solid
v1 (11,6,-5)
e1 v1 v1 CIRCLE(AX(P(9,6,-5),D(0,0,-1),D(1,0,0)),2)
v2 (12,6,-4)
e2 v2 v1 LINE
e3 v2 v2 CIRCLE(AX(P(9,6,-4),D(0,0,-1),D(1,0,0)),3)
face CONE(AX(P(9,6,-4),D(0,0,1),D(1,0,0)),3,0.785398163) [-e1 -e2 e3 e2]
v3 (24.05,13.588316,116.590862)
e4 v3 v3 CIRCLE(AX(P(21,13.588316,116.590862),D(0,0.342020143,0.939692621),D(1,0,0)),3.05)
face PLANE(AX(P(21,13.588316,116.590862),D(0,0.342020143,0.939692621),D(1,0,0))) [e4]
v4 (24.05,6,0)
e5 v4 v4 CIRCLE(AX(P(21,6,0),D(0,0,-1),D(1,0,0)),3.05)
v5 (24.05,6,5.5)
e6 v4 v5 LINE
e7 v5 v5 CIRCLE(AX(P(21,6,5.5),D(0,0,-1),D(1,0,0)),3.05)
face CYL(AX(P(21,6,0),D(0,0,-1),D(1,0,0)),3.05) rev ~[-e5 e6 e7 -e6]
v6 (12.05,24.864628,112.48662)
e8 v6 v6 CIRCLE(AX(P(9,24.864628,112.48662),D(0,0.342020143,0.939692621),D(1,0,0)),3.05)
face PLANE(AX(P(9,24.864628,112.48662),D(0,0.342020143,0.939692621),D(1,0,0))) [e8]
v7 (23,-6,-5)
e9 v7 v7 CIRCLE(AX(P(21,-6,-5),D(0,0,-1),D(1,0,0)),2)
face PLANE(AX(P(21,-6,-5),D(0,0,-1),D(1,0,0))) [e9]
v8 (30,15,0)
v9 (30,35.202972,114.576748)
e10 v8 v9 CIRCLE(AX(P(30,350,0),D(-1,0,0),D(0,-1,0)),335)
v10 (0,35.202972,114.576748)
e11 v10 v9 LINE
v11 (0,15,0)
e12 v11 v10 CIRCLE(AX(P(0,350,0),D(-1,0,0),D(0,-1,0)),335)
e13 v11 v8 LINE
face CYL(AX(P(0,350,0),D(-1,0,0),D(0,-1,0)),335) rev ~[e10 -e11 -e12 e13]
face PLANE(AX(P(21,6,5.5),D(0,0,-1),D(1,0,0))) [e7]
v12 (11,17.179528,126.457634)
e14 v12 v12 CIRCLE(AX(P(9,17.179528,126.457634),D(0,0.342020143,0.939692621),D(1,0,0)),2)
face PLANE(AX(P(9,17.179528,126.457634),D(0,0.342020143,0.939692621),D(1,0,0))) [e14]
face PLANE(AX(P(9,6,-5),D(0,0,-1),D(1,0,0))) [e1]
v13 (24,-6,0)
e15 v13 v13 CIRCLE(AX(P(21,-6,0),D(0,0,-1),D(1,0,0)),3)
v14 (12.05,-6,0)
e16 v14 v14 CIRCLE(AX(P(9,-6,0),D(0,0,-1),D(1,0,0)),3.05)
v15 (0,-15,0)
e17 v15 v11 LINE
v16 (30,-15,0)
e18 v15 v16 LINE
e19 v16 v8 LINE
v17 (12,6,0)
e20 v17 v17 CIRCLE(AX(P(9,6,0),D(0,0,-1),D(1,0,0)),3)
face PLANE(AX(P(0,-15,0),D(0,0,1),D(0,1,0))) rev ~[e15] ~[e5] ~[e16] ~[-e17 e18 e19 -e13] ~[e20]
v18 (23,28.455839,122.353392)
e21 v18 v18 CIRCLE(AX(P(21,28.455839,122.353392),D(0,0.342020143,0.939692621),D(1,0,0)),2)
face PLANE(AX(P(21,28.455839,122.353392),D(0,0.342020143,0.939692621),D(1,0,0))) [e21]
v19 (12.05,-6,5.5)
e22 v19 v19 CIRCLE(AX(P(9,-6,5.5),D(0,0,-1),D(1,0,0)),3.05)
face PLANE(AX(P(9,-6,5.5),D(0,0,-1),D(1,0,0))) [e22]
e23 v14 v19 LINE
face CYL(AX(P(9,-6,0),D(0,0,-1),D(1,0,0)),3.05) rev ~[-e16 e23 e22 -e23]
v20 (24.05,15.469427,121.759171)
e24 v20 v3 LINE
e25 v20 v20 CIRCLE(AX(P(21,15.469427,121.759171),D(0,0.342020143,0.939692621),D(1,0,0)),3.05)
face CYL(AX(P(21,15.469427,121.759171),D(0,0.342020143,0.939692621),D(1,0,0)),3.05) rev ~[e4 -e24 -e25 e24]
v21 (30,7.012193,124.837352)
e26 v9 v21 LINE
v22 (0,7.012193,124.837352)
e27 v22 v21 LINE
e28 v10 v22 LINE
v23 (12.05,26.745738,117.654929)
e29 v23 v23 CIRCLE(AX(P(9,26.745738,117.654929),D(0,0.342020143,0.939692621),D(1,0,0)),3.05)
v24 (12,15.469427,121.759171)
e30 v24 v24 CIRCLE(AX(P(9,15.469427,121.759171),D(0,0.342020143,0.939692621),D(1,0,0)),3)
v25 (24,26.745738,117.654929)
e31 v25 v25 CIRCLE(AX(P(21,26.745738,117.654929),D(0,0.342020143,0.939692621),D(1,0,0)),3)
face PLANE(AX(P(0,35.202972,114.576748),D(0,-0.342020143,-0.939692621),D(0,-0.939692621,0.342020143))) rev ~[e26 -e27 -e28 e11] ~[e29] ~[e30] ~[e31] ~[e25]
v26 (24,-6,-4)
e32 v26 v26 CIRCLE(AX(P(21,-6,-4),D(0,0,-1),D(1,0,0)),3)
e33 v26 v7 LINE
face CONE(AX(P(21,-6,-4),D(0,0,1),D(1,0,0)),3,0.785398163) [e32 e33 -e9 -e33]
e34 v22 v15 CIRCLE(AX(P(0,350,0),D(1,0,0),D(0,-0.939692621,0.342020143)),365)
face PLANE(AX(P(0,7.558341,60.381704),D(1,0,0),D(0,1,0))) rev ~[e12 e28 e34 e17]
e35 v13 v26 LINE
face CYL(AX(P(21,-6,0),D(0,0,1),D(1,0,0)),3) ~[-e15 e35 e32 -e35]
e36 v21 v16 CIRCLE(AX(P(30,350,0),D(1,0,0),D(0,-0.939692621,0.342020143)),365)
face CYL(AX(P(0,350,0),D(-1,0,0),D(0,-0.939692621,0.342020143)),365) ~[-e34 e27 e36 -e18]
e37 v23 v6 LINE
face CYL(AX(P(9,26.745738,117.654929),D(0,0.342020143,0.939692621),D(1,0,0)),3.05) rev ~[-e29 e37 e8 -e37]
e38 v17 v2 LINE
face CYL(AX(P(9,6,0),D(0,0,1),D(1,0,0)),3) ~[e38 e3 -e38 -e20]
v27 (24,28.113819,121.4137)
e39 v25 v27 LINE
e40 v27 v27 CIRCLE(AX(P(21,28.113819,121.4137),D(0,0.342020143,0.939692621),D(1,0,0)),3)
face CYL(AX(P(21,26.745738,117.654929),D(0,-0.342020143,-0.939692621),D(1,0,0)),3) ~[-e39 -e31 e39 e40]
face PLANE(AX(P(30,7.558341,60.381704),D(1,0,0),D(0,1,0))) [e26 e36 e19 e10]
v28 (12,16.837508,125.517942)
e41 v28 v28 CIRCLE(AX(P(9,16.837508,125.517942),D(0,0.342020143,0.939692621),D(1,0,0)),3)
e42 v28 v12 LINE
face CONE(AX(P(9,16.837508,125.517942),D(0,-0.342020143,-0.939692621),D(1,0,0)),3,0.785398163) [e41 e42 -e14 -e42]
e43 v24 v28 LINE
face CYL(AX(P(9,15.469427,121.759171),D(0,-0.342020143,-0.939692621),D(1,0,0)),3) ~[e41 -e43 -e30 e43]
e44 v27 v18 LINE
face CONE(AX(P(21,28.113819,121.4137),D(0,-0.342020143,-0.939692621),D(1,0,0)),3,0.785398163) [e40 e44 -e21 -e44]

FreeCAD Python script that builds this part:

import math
import FreeCAD as App
import Part
import Sketcher
Q = App.Units.Quantity


def edges_at(feature, points):
    """Names of the edges that pass closest to the given points."""
    edges = feature.Shape.Edges
    near = lambda p: min(range(len(edges)), key=lambda i: edges[i].distToShape(Part.Vertex(*p))[0])
    return sorted({f"Edge{near(p) + 1}" for p in points})

doc = App.newDocument("Part")
body = doc.addObject("PartDesign::Body", "Body")

sketch1 = doc.addObject("Sketcher::SketchObject", "Sketch")
body.addObject(sketch1)
sketch1.AttachmentSupport = (doc.YZ_Plane, [""])
sketch1.MapMode = "FlatFace"
sketch1.addGeometry([
    Part.ArcOfCircle(Part.Circle(App.Vector(350, 0, 0), App.Vector(0, 0, 1), 365), math.radians(160), math.radians(180)),
    Part.LineSegment(App.Vector(-15, 0, 0), App.Vector(15, 0, 0)),
    Part.ArcOfCircle(Part.Circle(App.Vector(350, 0, 0), App.Vector(0, 0, 1), 335), math.radians(160), math.radians(180)),
    Part.LineSegment(App.Vector(35, 115, 0), App.Vector(7, 125, 0)),
], False)
sketch1.addConstraint([
    Sketcher.Constraint("Coincident", 0, 2, 1, 1),
    Sketcher.Constraint("Coincident", 1, 2, 2, 2),
    Sketcher.Constraint("Coincident", 2, 1, 3, 1),
    Sketcher.Constraint("Coincident", 3, 2, 0, 1),
    Sketcher.Constraint("Horizontal", 1),
    Sketcher.Constraint("Coincident", 2, 3, 0, 3),
    Sketcher.Constraint("Symmetric", 0, 2, 1, 2, -1, 1),
    Sketcher.Constraint("PointOnObject", 0, 3, -1),
    Sketcher.Constraint("Radius", 0, Q("365 mm")),
    Sketcher.Constraint("Radius", 2, Q("335 mm")),
    Sketcher.Constraint("Angle", 3, Q("160 deg")),
    Sketcher.Constraint("DistanceY", -1, 1, 2, 1, Q("114.576748 mm")),
])
pad1 = doc.addObject("PartDesign::Pad", "Pad")
body.addObject(pad1)
pad1.Profile = sketch1
pad1.Length = 30

sketch2 = doc.addObject("Sketcher::SketchObject", "Sketch001")
body.addObject(sketch2)
sketch2.Placement = App.Placement(App.Vector(0, 40.942222, 112.487832), App.Rotation(App.Vector(1, 0, 0), App.Vector(0, 0.939692621, -0.342020143), App.Vector(0, 0.342020143, 0.939692621), "ZXY"))
sketch2.addGeometry([
    Part.Circle(App.Vector(9, -27.1, 0), App.Vector(0, 0, 1), 3),
    Part.Circle(App.Vector(21, -15.1, 0), App.Vector(0, 0, 1), 3),
], False)
sketch2.addConstraint([
    Sketcher.Constraint("Equal", 0, 1),
    Sketcher.Constraint("Diameter", 0, Q("6 mm")),
    Sketcher.Constraint("DistanceX", -1, 1, 0, 3, Q("9 mm")),
    Sketcher.Constraint("DistanceX", -1, 1, 1, 3, Q("21 mm")),
    Sketcher.Constraint("DistanceY", 0, 3, 1, 3, Q("12 mm")),
    Sketcher.Constraint("DistanceY", 0, 3, -1, 1, Q("27.107583 mm")),
])
pad2 = doc.addObject("PartDesign::Pad", "Pad001")
body.addObject(pad2)
pad2.Profile = sketch2
pad2.Length = 5
doc.recompute()

chamfer = doc.addObject("PartDesign::Chamfer", "Chamfer")
body.addObject(chamfer)
chamfer.Base = (pad2, edges_at(pad2, [(6, 17.18, 126.458), (18, 28.456, 122.353)]))
chamfer.Size = 1

sketch3 = doc.addObject("Sketcher::SketchObject", "Sketch002")
body.addObject(sketch3)
sketch3.AttachmentSupport = (doc.XY_Plane, [""])
sketch3.MapMode = "FlatFace"
sketch3.addGeometry([
    Part.Circle(App.Vector(9, 6, 0), App.Vector(0, 0, 1), 3),
    Part.Circle(App.Vector(21, -6, 0), App.Vector(0, 0, 1), 3),
], False)
sketch3.addConstraint([
    Sketcher.Constraint("Equal", 0, 1),
    Sketcher.Constraint("Diameter", 0, Q("6 mm")),
    Sketcher.Constraint("DistanceX", -1, 1, 0, 3, Q("9 mm")),
    Sketcher.Constraint("DistanceY", -1, 1, 0, 3, Q("6 mm")),
    Sketcher.Constraint("DistanceX", -1, 1, 1, 3, Q("21 mm")),
    Sketcher.Constraint("DistanceY", 1, 3, -1, 1, Q("6 mm")),
])
pad3 = doc.addObject("PartDesign::Pad", "Pad002")
body.addObject(pad3)
pad3.Profile = sketch3
pad3.Length = 5
pad3.Reversed = True
doc.recompute()

chamfer2 = doc.addObject("PartDesign::Chamfer", "Chamfer001")
body.addObject(chamfer2)
chamfer2.Base = (pad3, edges_at(pad3, [(6, 6, -5), (18, -6, -5)]))
chamfer2.Size = 1

sketch4 = doc.addObject("Sketcher::SketchObject", "Sketch003")
body.addObject(sketch4)
sketch4.Placement = App.Placement(App.Vector(0, 40.942222, 112.487832), App.Rotation(App.Vector(1, 0, 0), App.Vector(0, 0.939692621, -0.342020143), App.Vector(0, 0.342020143, 0.939692621), "ZXY"))
sketch4.addGeometry([
    Part.Circle(App.Vector(9, -15.1, 0), App.Vector(0, 0, 1), 3),
    Part.Circle(App.Vector(21, -27.1, 0), App.Vector(0, 0, 1), 3),
], False)
sketch4.addConstraint([
    Sketcher.Constraint("Equal", 0, 1),
    Sketcher.Constraint("Diameter", 0, Q("6.1 mm")),
    Sketcher.Constraint("DistanceX", -1, 1, 0, 3, Q("9 mm")),
    Sketcher.Constraint("DistanceX", -1, 1, 1, 3, Q("21 mm")),
    Sketcher.Constraint("DistanceY", 1, 3, 0, 3, Q("12 mm")),
    Sketcher.Constraint("DistanceY", 0, 3, -1, 1, Q("15.107583 mm")),
])
pocket1 = doc.addObject("PartDesign::Pocket", "Pocket")
body.addObject(pocket1)
pocket1.Profile = sketch4
pocket1.Length = 5.5

sketch5 = doc.addObject("Sketcher::SketchObject", "Sketch004")
body.addObject(sketch5)
sketch5.AttachmentSupport = (doc.XY_Plane, [""])
sketch5.MapMode = "FlatFace"
sketch5.addGeometry([
    Part.Circle(App.Vector(9, -6, 0), App.Vector(0, 0, 1), 3),
    Part.Circle(App.Vector(21, 6, 0), App.Vector(0, 0, 1), 3),
], False)
sketch5.addConstraint([
    Sketcher.Constraint("Equal", 0, 1),
    Sketcher.Constraint("Diameter", 0, Q("6.1 mm")),
    Sketcher.Constraint("DistanceX", -1, 1, 0, 3, Q("9 mm")),
    Sketcher.Constraint("DistanceY", 0, 3, -1, 1, Q("6 mm")),
    Sketcher.Constraint("DistanceX", -1, 1, 1, 3, Q("21 mm")),
    Sketcher.Constraint("DistanceY", -1, 1, 1, 3, Q("6 mm")),
])
pocket2 = doc.addObject("PartDesign::Pocket", "Pocket001")
body.addObject(pocket2)
pocket2.Profile = sketch5
pocket2.Length = 5.5
pocket2.Reversed = True

doc.recompute()
